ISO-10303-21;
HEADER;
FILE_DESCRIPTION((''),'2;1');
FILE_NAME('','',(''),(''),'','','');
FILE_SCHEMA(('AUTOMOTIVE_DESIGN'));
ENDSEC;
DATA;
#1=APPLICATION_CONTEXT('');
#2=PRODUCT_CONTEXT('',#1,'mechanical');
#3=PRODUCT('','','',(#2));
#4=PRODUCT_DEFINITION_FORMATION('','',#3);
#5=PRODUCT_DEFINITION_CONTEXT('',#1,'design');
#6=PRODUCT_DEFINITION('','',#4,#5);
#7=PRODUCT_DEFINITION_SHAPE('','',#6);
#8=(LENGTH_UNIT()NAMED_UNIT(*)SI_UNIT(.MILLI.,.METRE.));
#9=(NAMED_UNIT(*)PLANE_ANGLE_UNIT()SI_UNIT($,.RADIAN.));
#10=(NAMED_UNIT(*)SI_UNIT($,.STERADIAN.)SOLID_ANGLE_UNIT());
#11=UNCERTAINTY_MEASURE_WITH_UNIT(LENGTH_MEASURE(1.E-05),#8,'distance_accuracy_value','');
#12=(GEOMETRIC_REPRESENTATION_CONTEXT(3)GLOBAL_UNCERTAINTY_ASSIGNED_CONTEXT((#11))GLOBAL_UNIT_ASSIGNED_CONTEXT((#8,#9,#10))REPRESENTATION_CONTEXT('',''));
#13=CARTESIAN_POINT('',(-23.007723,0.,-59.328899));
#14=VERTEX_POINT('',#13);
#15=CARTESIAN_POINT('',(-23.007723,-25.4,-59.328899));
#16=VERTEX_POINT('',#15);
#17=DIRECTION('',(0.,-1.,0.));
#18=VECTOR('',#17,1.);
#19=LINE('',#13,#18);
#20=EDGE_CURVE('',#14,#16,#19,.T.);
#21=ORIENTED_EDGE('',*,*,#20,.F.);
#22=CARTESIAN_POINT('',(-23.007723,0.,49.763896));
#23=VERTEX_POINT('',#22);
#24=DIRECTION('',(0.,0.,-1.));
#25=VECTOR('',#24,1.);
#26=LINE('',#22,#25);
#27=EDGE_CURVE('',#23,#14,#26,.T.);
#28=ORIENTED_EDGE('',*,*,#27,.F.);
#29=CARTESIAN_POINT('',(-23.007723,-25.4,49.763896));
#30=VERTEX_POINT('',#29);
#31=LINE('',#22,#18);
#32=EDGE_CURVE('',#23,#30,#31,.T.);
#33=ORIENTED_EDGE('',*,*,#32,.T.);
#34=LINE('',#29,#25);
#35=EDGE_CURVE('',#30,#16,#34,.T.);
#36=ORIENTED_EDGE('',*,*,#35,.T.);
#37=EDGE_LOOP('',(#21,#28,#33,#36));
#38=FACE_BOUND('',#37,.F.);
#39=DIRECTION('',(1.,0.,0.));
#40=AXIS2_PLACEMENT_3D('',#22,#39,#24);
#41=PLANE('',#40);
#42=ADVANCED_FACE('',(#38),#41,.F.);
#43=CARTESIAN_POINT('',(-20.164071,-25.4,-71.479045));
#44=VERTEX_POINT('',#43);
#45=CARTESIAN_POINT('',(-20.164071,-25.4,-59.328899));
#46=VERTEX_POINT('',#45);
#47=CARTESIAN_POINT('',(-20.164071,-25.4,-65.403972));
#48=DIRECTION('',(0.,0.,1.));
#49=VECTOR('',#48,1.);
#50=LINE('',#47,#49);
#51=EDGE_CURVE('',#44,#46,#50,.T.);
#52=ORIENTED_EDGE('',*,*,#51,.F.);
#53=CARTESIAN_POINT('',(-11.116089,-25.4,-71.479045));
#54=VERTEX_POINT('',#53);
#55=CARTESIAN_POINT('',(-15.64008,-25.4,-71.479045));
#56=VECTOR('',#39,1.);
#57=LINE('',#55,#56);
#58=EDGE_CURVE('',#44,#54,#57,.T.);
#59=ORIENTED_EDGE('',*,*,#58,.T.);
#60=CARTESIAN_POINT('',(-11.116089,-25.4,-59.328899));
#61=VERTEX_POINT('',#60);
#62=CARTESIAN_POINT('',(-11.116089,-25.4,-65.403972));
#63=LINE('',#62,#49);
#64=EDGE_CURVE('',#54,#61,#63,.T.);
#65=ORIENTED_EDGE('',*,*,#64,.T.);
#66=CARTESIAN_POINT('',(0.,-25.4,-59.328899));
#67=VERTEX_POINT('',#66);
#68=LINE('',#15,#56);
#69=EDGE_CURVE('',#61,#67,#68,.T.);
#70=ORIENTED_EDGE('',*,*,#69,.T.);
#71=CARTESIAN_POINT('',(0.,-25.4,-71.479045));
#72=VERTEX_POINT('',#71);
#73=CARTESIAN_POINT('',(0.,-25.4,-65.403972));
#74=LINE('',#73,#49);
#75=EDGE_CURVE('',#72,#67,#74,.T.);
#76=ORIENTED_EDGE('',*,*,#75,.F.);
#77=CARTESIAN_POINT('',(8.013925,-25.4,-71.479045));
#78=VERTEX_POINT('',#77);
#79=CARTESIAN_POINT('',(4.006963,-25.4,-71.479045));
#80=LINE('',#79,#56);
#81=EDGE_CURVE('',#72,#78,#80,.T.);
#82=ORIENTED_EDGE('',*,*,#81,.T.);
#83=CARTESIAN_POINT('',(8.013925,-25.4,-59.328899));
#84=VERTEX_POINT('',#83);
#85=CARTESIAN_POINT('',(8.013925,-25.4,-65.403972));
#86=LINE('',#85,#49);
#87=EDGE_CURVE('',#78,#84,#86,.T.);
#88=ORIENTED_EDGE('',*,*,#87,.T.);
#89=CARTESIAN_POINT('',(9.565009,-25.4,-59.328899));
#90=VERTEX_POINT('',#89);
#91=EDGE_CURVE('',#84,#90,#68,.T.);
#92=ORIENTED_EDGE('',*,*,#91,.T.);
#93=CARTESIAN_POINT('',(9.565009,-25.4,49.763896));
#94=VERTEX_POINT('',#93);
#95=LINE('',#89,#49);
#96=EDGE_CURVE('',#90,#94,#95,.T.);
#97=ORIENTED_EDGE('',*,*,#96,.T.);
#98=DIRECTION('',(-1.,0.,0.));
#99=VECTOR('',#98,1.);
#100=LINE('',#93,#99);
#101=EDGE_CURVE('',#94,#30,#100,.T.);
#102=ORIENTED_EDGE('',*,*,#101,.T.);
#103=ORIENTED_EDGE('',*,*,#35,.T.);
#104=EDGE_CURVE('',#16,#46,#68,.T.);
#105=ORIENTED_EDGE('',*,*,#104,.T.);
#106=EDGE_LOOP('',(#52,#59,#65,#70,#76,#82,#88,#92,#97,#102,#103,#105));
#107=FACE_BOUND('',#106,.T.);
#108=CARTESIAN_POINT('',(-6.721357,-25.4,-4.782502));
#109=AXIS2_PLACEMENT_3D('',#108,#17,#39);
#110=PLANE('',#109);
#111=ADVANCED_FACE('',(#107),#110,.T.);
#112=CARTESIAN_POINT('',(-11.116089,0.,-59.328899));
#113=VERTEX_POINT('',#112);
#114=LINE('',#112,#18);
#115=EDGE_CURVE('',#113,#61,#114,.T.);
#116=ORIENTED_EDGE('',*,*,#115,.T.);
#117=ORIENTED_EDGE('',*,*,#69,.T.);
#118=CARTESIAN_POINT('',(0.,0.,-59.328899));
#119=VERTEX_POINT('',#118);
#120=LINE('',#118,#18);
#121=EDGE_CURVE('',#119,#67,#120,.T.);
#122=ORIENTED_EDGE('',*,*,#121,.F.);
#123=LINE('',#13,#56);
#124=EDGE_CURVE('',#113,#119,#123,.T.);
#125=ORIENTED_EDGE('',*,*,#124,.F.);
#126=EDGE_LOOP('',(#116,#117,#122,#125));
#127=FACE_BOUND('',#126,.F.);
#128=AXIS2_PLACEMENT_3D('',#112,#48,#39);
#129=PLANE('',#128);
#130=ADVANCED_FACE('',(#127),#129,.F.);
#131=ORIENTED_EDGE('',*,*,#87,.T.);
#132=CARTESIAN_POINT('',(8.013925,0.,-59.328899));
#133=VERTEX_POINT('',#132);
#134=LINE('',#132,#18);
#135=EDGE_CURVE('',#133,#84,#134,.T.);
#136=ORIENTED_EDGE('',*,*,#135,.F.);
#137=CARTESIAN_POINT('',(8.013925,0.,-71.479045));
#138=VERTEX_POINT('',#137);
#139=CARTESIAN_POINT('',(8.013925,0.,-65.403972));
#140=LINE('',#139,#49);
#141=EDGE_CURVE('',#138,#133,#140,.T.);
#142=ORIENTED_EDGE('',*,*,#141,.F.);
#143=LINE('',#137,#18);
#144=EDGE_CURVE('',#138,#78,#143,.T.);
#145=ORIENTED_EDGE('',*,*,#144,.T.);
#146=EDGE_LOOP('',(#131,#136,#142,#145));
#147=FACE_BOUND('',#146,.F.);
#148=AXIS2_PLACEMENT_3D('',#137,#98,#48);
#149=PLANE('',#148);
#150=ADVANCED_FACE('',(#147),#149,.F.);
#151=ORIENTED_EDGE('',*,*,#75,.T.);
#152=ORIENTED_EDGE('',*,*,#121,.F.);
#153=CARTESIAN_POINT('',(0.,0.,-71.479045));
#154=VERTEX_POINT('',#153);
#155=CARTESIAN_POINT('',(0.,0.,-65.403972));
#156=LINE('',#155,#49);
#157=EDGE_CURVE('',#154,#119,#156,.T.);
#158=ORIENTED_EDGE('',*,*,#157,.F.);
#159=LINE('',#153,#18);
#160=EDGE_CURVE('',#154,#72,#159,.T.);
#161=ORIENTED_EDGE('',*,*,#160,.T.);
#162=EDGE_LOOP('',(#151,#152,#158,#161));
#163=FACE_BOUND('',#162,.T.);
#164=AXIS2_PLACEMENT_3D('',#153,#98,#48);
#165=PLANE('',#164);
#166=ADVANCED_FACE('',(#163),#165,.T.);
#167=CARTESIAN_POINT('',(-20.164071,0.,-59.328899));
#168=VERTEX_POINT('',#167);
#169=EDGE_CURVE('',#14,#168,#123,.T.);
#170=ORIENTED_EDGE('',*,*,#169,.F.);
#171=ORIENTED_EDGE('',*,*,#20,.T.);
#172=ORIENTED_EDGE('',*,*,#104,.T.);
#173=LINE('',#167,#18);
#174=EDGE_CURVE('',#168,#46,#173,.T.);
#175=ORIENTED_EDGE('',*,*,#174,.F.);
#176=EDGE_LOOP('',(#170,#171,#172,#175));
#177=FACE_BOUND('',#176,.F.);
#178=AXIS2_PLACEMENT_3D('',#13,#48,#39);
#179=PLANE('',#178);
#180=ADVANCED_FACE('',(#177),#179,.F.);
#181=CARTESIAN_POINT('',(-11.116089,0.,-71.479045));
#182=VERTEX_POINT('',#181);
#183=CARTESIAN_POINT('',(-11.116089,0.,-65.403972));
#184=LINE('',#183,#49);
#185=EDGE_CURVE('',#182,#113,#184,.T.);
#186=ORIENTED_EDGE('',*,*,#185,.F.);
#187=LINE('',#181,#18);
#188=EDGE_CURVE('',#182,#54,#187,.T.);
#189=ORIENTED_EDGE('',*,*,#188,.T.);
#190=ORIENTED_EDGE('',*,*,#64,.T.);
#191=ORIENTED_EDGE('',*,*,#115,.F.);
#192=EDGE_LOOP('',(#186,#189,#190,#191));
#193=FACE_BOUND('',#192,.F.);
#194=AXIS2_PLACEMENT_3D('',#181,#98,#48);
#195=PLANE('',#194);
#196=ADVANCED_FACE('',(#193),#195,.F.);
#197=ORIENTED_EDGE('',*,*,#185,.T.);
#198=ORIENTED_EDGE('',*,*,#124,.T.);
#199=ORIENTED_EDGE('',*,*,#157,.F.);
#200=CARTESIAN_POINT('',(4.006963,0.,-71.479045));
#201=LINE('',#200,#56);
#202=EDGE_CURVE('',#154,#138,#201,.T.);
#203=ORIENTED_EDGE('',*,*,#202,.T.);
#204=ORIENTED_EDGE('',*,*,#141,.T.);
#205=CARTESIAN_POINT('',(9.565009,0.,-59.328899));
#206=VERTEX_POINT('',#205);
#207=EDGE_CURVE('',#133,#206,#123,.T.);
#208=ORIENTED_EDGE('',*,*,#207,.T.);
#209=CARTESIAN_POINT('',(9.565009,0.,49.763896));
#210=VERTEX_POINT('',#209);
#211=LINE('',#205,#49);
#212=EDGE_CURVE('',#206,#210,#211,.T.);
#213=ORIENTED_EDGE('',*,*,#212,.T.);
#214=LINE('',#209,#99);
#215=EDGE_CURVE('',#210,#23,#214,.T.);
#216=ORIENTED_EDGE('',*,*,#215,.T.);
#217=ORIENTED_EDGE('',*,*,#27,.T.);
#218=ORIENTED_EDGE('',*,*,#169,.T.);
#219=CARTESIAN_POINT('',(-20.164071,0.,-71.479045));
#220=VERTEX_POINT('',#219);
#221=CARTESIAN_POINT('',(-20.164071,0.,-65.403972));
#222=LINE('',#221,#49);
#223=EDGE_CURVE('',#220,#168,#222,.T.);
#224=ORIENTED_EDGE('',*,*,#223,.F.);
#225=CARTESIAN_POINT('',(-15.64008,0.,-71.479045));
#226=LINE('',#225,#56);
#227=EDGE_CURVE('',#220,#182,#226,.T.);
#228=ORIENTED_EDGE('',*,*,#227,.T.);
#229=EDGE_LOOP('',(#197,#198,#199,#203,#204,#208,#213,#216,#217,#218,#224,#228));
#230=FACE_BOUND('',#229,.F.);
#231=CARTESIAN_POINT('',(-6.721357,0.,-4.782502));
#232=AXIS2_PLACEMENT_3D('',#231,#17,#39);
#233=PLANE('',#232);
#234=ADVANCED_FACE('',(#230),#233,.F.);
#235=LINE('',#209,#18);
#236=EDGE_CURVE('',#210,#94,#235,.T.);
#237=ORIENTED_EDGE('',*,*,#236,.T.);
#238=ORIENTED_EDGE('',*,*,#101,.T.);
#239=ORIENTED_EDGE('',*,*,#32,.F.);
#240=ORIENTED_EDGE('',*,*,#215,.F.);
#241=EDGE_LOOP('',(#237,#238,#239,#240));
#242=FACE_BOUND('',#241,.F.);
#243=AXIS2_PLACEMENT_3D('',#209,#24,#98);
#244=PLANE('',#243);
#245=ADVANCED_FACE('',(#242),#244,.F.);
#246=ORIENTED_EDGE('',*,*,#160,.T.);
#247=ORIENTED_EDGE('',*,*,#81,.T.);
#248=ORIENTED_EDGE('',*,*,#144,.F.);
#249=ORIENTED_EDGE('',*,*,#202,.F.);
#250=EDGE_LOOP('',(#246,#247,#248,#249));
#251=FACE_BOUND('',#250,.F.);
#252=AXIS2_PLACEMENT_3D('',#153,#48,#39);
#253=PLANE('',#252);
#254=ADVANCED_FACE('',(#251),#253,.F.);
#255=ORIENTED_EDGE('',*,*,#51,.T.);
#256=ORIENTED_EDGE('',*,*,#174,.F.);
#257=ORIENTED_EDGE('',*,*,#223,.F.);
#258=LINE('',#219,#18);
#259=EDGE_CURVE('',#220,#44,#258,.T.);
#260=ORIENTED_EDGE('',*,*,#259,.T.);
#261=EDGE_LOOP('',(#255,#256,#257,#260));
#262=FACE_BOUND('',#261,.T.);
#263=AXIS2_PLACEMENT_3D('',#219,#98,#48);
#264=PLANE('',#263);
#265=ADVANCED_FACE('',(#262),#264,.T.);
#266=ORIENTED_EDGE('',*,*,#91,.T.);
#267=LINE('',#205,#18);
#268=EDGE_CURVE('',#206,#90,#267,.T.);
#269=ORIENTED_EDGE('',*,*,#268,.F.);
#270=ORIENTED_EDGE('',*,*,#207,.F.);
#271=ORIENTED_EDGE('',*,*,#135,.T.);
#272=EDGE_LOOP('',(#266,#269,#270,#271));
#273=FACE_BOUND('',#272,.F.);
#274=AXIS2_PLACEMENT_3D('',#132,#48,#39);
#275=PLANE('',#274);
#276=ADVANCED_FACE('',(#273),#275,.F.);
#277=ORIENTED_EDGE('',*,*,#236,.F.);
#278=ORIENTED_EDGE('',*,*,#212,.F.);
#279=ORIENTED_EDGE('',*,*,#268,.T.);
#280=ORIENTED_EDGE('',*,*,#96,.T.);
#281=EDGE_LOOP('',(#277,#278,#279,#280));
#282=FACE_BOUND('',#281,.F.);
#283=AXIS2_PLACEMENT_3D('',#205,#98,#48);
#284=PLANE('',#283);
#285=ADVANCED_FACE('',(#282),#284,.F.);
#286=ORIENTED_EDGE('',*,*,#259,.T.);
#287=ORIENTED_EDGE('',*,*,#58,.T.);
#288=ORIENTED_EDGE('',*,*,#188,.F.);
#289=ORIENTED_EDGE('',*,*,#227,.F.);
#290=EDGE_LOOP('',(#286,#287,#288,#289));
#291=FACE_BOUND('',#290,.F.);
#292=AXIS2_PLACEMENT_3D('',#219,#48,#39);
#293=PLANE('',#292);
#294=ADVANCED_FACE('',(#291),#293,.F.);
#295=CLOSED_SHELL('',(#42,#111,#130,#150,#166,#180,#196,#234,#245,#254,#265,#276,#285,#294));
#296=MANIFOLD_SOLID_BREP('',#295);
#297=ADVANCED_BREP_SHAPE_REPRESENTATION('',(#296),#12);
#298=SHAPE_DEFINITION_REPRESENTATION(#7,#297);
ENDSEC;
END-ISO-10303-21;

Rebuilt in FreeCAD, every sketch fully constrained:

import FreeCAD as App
import Part
import Sketcher

V = App.Vector

doc = App.newDocument("Part")
params = doc.addObject("Spreadsheet::Sheet", "Params")
for row, (alias, value) in enumerate([
    ("pad1_length", "1 in"),
], start=1):
    params.set(f"A{row}", alias)
    params.set(f"B{row}", "=" + value)
    params.setAlias(f"B{row}", alias)

body = doc.addObject("PartDesign::Body", "Body")

# Sketch on XZ plane
sketch1 = body.newObject("Sketcher::SketchObject", "Sketch")
sketch1.AttachmentSupport = (doc.getObject("XZ_Plane"), [""])
sketch1.MapMode = "FlatFace"
sketch1.addGeometry([
    Part.LineSegment(V(9.565009, 49.763896, 0), V(-23.007723, 49.763896, 0)),  # 0
    Part.LineSegment(V(-23.007723, 49.763896, 0), V(-23.007723, -59.328899, 0)),  # 1
    Part.LineSegment(V(-23.007723, -59.328899, 0), V(-20.164071, -59.328899, 0)),  # 2
    Part.LineSegment(V(-20.164071, -59.328899, 0), V(-20.164071, -71.479045, 0)),  # 3
    Part.LineSegment(V(-20.164071, -71.479045, 0), V(-11.116089, -71.479045, 0)),  # 4
    Part.LineSegment(V(-11.116089, -71.479045, 0), V(-11.116089, -59.328899, 0)),  # 5
    Part.LineSegment(V(-11.116089, -59.328899, 0), V(0, -59.328899, 0)),  # 6
    Part.LineSegment(V(0, -59.328899, 0), V(0, -71.479045, 0)),  # 7
    Part.LineSegment(V(0, -71.479045, 0), V(8.013925, -71.479045, 0)),  # 8
    Part.LineSegment(V(8.013925, -71.479045, 0), V(8.013925, -59.328899, 0)),  # 9
    Part.LineSegment(V(8.013925, -59.328899, 0), V(9.565009, -59.328899, 0)),  # 10
    Part.LineSegment(V(9.565009, -59.328899, 0), V(9.565009, 49.763896, 0)),  # 11
], False)
sketch1.addConstraint([
    Sketcher.Constraint("Coincident", 0, 2, 1, 1),
    Sketcher.Constraint("Coincident", 1, 2, 2, 1),
    Sketcher.Constraint("Coincident", 2, 2, 3, 1),
    Sketcher.Constraint("Coincident", 3, 2, 4, 1),
    Sketcher.Constraint("Coincident", 4, 2, 5, 1),
    Sketcher.Constraint("Coincident", 5, 2, 6, 1),
    Sketcher.Constraint("Coincident", 6, 2, 7, 1),
    Sketcher.Constraint("Coincident", 7, 2, 8, 1),
    Sketcher.Constraint("Coincident", 8, 2, 9, 1),
    Sketcher.Constraint("Coincident", 9, 2, 10, 1),
    Sketcher.Constraint("Coincident", 10, 2, 11, 1),
    Sketcher.Constraint("Coincident", 11, 2, 0, 1),
    Sketcher.Constraint("Horizontal", 0),
    Sketcher.Constraint("Vertical", 1),
    Sketcher.Constraint("Horizontal", 2),
    Sketcher.Constraint("Vertical", 3),
    Sketcher.Constraint("Horizontal", 4),
    Sketcher.Constraint("Vertical", 5),
    Sketcher.Constraint("Horizontal", 6),
    Sketcher.Constraint("Vertical", 7),
    Sketcher.Constraint("Horizontal", 8),
    Sketcher.Constraint("Vertical", 9),
    Sketcher.Constraint("Horizontal", 10),
    Sketcher.Constraint("Vertical", 11),
    Sketcher.Constraint("PointOnObject", 6, 2, -2),
    Sketcher.Constraint("Horizontal", 2, 2, 5, 2),
    Sketcher.Constraint("Horizontal", 4, 2, 7, 2),
    Sketcher.Constraint("Horizontal", 6, 2, 9, 2),
    Sketcher.Constraint("DistanceX", 4, 1, 4, 2, 9.047981),
    Sketcher.Constraint("DistanceX", 6, 1, 6, 2, 11.11609),
    Sketcher.Constraint("DistanceY", 1, 2, -1, 1, 59.328899),
    Sketcher.Constraint("DistanceX", 5, 2, 10, 2, 20.681098),
    Sketcher.Constraint("DistanceX", 0, 2, 0, 1, 32.572732),
    Sketcher.Constraint("DistanceX", 8, 1, 8, 2, 8.013925),
    Sketcher.Constraint("DistanceY", 1, 2, 1, 1, 109.092795),
    Sketcher.Constraint("DistanceY", 3, 2, 3, 1, 12.150146),
])
pad1 = body.newObject("PartDesign::Pad", "Pad")
pad1.Profile = sketch1
pad1.setExpression("Length", "Params.pad1_length")

doc.recompute()
